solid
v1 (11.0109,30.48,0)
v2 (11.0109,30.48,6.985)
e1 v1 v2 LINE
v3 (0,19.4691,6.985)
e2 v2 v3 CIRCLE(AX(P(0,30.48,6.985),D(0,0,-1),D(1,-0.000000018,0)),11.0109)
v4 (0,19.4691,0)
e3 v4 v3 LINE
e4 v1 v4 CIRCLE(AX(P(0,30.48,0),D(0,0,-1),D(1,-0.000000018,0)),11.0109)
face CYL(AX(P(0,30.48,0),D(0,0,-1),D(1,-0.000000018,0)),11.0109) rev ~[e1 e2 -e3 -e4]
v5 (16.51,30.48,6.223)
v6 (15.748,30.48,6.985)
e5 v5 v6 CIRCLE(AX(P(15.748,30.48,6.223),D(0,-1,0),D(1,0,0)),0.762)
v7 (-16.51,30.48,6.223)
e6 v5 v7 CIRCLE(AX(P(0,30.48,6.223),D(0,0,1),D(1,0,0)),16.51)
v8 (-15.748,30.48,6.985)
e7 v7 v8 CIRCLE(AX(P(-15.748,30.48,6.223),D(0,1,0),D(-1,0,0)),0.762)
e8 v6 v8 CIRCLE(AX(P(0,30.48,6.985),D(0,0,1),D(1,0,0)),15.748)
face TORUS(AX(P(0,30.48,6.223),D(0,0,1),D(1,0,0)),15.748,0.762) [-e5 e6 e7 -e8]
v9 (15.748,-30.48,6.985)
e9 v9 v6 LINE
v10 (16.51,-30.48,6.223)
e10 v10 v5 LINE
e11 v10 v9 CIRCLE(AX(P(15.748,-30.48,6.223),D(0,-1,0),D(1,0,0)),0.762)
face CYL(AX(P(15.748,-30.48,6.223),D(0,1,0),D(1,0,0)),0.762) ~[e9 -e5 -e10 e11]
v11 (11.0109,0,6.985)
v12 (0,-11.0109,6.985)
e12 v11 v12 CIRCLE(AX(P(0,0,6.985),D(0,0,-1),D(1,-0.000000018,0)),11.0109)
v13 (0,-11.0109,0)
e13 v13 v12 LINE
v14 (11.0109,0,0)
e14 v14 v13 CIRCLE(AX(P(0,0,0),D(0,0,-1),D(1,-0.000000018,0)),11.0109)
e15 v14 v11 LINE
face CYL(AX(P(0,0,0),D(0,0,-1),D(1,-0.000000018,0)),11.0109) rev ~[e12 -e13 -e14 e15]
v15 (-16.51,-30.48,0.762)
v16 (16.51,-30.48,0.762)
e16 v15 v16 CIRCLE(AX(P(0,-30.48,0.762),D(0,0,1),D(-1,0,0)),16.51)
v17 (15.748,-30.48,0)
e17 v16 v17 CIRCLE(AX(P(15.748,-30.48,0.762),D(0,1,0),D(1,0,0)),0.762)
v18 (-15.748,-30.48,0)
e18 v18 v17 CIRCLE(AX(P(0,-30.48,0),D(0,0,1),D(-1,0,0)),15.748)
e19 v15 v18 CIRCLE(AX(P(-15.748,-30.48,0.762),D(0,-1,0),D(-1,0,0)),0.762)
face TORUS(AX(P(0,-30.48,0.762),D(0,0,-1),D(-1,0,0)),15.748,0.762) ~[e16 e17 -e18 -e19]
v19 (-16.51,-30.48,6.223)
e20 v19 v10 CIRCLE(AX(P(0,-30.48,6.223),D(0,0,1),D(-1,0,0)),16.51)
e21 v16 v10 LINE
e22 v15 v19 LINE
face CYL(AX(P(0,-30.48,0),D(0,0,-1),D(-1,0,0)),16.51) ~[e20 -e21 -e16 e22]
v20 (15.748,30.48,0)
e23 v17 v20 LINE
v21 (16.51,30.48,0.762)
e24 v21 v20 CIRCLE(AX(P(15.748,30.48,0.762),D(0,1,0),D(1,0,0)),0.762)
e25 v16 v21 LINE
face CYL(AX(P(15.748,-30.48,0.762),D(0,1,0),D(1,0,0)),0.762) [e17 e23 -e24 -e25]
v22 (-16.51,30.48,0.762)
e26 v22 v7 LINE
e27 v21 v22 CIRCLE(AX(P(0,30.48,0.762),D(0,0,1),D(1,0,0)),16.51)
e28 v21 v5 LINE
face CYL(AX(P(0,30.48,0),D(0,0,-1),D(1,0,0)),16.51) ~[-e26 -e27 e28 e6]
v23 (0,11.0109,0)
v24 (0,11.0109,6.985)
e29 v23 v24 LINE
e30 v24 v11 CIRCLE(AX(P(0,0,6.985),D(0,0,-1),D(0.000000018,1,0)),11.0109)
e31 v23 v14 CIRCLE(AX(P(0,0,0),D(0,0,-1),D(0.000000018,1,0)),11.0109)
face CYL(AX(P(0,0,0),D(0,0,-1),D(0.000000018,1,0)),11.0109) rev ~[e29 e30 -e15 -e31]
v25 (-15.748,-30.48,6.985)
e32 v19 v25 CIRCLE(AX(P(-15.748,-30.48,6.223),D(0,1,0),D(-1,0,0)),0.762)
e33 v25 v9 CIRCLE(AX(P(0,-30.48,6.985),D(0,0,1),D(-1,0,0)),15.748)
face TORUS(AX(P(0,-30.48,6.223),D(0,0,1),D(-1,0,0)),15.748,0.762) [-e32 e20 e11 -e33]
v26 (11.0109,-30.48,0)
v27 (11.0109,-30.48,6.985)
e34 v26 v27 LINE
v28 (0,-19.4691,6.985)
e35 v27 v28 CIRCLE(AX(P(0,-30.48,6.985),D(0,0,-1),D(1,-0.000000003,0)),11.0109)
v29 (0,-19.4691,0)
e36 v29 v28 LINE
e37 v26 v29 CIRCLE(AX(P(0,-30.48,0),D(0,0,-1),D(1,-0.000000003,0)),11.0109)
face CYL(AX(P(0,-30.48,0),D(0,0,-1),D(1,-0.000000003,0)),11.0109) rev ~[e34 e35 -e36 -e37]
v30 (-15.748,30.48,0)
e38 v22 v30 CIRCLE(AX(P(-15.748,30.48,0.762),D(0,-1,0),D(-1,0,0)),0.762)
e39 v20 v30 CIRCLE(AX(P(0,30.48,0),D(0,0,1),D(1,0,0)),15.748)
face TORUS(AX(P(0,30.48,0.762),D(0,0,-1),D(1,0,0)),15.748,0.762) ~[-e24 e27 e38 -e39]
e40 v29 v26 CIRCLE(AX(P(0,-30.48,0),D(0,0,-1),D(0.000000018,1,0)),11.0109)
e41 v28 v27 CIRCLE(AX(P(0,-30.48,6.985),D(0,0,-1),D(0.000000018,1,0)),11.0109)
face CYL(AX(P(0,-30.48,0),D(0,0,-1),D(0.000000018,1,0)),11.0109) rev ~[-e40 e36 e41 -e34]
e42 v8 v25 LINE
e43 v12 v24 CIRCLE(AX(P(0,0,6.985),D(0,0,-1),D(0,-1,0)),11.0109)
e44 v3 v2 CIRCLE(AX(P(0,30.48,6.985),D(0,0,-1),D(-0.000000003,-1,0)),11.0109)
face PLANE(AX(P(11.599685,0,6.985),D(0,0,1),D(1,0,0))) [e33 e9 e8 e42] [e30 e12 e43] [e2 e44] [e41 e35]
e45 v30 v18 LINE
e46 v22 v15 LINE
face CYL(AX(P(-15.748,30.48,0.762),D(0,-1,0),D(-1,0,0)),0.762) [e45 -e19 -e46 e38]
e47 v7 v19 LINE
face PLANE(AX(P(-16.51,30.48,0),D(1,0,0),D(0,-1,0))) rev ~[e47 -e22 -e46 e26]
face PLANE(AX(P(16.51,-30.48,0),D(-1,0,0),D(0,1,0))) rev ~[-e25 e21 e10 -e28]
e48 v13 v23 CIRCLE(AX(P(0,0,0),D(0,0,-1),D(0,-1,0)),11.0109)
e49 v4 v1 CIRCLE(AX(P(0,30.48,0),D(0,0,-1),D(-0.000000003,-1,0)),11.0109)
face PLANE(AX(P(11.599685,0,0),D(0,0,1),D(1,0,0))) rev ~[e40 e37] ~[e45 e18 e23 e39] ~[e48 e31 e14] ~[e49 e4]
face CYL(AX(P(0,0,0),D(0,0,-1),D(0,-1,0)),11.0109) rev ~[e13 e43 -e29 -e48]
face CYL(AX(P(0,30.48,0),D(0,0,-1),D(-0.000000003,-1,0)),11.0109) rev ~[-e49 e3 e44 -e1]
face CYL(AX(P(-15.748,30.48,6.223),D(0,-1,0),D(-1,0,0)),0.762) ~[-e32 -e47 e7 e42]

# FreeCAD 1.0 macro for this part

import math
import FreeCAD as App
import Part
import Sketcher
from FreeCAD import Vector
Q = App.Units.Quantity


def edges_at(feature, points):
    """Names of the edges that pass closest to the given points."""
    edges = feature.Shape.Edges
    near = lambda p: min(range(len(edges)), key=lambda i: edges[i].distToShape(Part.Vertex(*p))[0])
    return sorted({f"Edge{near(p) + 1}" for p in points})

doc = App.newDocument("Part")
body = doc.addObject("PartDesign::Body", "Body")

# Sketch on XY plane
sketch1 = body.newObject("Sketcher::SketchObject", "Sketch")
sketch1.AttachmentSupport = (doc.getObject("XY_Plane"), [""])
sketch1.MapMode = "FlatFace"
sketch1.addGeometry([
    Part.LineSegment(Vector(17, -30, 0), Vector(17, 30, 0)),  # 0
    Part.ArcOfCircle(Part.Circle(Vector(0, 30, 0), Vector(0, 0, 1), 17), math.radians(0), math.radians(180)),  # 1
    Part.LineSegment(Vector(-17, 30, 0), Vector(-17, -30, 0)),  # 2
    Part.ArcOfCircle(Part.Circle(Vector(0, -30, 0), Vector(0, 0, 1), 17), math.radians(180), math.radians(360)),  # 3
    Part.ArcOfCircle(Part.Circle(Vector(0, -30, 0), Vector(0, 0, 1), 11), math.radians(0), math.radians(90)),  # 4
    Part.ArcOfCircle(Part.Circle(Vector(0, -30, 0), Vector(0, 0, 1), 11), math.radians(90), math.radians(360)),  # 5
    Part.ArcOfCircle(Part.Circle(Vector(0, 0, 0), Vector(0, 0, 1), 11), math.radians(0), math.radians(90)),  # 6
    Part.ArcOfCircle(Part.Circle(Vector(0, 0, 0), Vector(0, 0, 1), 11), math.radians(-90), math.radians(0)),  # 7
    Part.ArcOfCircle(Part.Circle(Vector(0, 0, 0), Vector(0, 0, 1), 11), math.radians(90), math.radians(270)),  # 8
    Part.ArcOfCircle(Part.Circle(Vector(0, 30, 0), Vector(0, 0, 1), 11), math.radians(0), math.radians(270)),  # 9
    Part.ArcOfCircle(Part.Circle(Vector(0, 30, 0), Vector(0, 0, 1), 11), math.radians(-90), math.radians(0)),  # 10
], False)
sketch1.addConstraint([
    Sketcher.Constraint("Tangent", 0, 2, 1, 1),
    Sketcher.Constraint("Tangent", 1, 2, 2, 1),
    Sketcher.Constraint("Tangent", 2, 2, 3, 1),
    Sketcher.Constraint("Tangent", 3, 2, 0, 1),
    Sketcher.Constraint("Tangent", 4, 1, 5, 2),
    Sketcher.Constraint("Coincident", 5, 1, 4, 2),
    Sketcher.Constraint("Tangent", 6, 1, 7, 2),
    Sketcher.Constraint("Tangent", 7, 1, 8, 2),
    Sketcher.Constraint("Tangent", 8, 1, 6, 2),
    Sketcher.Constraint("Tangent", 9, 1, 10, 2),
    Sketcher.Constraint("Coincident", 10, 1, 9, 2),
    Sketcher.Constraint("Vertical", 0),
    Sketcher.Constraint("Vertical", 2),
    Sketcher.Constraint("Coincident", 6, 3, -1, 1),
    Sketcher.Constraint("Coincident", 4, 3, 3, 3),
    Sketcher.Constraint("Coincident", 9, 3, 1, 3),
    Sketcher.Constraint("Equal", 5, 6),
    Sketcher.Constraint("Equal", 8, 9),
    Sketcher.Constraint("Symmetric", 1, 3, 3, 3, -1, 1),
    Sketcher.Constraint("PointOnObject", 5, 1, -2),
    Sketcher.Constraint("PointOnObject", 6, 1, -1),
    Sketcher.Constraint("PointOnObject", 7, 1, -2),
    Sketcher.Constraint("PointOnObject", 8, 1, -2),
    Sketcher.Constraint("PointOnObject", 10, 1, -2),
    Sketcher.Constraint("Horizontal", 3, 2, 4, 1),
    Sketcher.Constraint("Horizontal", 1, 2, 9, 1),
    Sketcher.Constraint("Radius", 1, Q("0.65 in")),
    Sketcher.Constraint("DistanceY", 0, 1, 0, 2, Q("2.4 in")),
    Sketcher.Constraint("Radius", 4, Q("0.4335 in")),
])
pad1 = body.newObject("PartDesign::Pad", "Pad")
pad1.Profile = sketch1
pad1.Length = Q("0.275 in")
doc.recompute()

fillet = body.newObject("PartDesign::Fillet", "Fillet")
fillet.Base = (pad1, edges_at(pad1, [(16.51, 0, 6.985)]))
fillet.Radius = Q("0.03 in")
doc.recompute()

fillet2 = body.newObject("PartDesign::Fillet", "Fillet001")
fillet2.Base = (fillet, edges_at(fillet, [
    (0, -46.99, 0),
    (16.51, 0, 0),
    (-16.51, 30.48, 3.111),
    (-16.51, 0, 0),
]))
fillet2.Radius = Q("0.03 in")

doc.recompute()
